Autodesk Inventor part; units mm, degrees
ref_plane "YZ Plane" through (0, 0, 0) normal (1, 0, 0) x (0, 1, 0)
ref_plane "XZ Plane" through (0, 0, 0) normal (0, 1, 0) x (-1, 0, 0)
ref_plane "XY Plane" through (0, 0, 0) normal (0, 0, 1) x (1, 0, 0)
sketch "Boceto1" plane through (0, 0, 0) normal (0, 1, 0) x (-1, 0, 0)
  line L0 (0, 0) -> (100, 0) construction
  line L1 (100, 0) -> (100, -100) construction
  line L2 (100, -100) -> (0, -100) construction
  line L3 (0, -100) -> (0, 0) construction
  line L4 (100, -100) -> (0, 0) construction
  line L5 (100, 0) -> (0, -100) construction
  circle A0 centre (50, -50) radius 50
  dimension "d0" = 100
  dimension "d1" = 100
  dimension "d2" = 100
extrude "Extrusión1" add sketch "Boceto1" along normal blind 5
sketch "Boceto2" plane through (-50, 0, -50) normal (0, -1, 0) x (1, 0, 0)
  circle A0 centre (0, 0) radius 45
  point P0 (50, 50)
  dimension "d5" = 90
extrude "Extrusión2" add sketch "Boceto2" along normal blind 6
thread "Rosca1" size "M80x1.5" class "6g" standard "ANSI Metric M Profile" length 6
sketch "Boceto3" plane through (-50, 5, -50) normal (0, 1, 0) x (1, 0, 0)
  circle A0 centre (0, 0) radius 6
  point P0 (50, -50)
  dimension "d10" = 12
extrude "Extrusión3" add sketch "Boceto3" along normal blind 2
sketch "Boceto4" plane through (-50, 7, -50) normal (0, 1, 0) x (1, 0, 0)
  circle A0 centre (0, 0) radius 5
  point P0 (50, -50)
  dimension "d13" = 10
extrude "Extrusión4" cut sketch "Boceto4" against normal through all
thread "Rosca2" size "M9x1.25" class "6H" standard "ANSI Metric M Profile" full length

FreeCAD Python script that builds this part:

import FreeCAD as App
import Part
import Sketcher
Q = App.Units.Quantity

doc = App.newDocument("Part")
body = doc.addObject("PartDesign::Body", "Body")

sketch1 = body.newObject("Sketcher::SketchObject", "Sketch")
sketch1.AttachmentSupport = (doc.getObject("XZ_Plane"), [""])
sketch1.MapMode = "FlatFace"
sketch1.addGeometry(Part.Circle(App.Vector(-50, -50, 0), App.Vector(0, 0, 1), 50), False)
sketch1.addConstraint(Sketcher.Constraint("Diameter", 0, Q("100 mm")))
sketch1.addConstraint(Sketcher.Constraint("DistanceX", 0, 3, -1, 1, Q("50 mm")))
sketch1.addConstraint(Sketcher.Constraint("DistanceY", 0, 3, -1, 1, Q("50 mm")))
pad1 = body.newObject("PartDesign::Pad", "Pad")
pad1.Profile = sketch1
pad1.Length = 5
pad1.Reversed = True

sketch2 = body.newObject("Sketcher::SketchObject", "Sketch001")
sketch2.AttachmentSupport = (doc.getObject("XZ_Plane"), [""])
sketch2.MapMode = "FlatFace"
sketch2.addGeometry(Part.Circle(App.Vector(-50, -50, 0), App.Vector(0, 0, 1), 45), False)
sketch2.addConstraint(Sketcher.Constraint("Diameter", 0, Q("90 mm")))
sketch2.addConstraint(Sketcher.Constraint("DistanceX", 0, 3, -1, 1, Q("50 mm")))
sketch2.addConstraint(Sketcher.Constraint("DistanceY", 0, 3, -1, 1, Q("50 mm")))
pad2 = body.newObject("PartDesign::Pad", "Pad001")
pad2.Profile = sketch2
pad2.Length = 6

sketch3 = body.newObject("Sketcher::SketchObject", "Sketch002")
sketch3.AttachmentSupport = (doc.getObject("XZ_Plane"), [""])
sketch3.MapMode = "FlatFace"
sketch3.AttachmentOffset = App.Placement(App.Vector(0, 0, -5), App.Rotation())
sketch3.addGeometry(Part.Circle(App.Vector(-50, -50, 0), App.Vector(0, 0, 1), 6), False)
sketch3.addConstraint(Sketcher.Constraint("Diameter", 0, Q("12 mm")))
sketch3.addConstraint(Sketcher.Constraint("DistanceX", 0, 3, -1, 1, Q("50 mm")))
sketch3.addConstraint(Sketcher.Constraint("DistanceY", 0, 3, -1, 1, Q("50 mm")))
pad3 = body.newObject("PartDesign::Pad", "Pad002")
pad3.Profile = sketch3
pad3.Length = 2
pad3.Reversed = True

sketch4 = body.newObject("Sketcher::SketchObject", "Sketch003")
sketch4.AttachmentSupport = (doc.getObject("XZ_Plane"), [""])
sketch4.MapMode = "FlatFace"
sketch4.AttachmentOffset = App.Placement(App.Vector(0, 0, -7), App.Rotation())
sketch4.addGeometry(Part.Circle(App.Vector(-50, -50, 0), App.Vector(0, 0, 1), 5), False)
sketch4.addConstraint(Sketcher.Constraint("Diameter", 0, Q("10 mm")))
sketch4.addConstraint(Sketcher.Constraint("DistanceX", 0, 3, -1, 1, Q("50 mm")))
sketch4.addConstraint(Sketcher.Constraint("DistanceY", 0, 3, -1, 1, Q("50 mm")))
pocket1 = body.newObject("PartDesign::Pocket", "Pocket")
pocket1.Profile = sketch4
pocket1.Type = "ThroughAll"
pocket1.Reversed = True

doc.recompute()
